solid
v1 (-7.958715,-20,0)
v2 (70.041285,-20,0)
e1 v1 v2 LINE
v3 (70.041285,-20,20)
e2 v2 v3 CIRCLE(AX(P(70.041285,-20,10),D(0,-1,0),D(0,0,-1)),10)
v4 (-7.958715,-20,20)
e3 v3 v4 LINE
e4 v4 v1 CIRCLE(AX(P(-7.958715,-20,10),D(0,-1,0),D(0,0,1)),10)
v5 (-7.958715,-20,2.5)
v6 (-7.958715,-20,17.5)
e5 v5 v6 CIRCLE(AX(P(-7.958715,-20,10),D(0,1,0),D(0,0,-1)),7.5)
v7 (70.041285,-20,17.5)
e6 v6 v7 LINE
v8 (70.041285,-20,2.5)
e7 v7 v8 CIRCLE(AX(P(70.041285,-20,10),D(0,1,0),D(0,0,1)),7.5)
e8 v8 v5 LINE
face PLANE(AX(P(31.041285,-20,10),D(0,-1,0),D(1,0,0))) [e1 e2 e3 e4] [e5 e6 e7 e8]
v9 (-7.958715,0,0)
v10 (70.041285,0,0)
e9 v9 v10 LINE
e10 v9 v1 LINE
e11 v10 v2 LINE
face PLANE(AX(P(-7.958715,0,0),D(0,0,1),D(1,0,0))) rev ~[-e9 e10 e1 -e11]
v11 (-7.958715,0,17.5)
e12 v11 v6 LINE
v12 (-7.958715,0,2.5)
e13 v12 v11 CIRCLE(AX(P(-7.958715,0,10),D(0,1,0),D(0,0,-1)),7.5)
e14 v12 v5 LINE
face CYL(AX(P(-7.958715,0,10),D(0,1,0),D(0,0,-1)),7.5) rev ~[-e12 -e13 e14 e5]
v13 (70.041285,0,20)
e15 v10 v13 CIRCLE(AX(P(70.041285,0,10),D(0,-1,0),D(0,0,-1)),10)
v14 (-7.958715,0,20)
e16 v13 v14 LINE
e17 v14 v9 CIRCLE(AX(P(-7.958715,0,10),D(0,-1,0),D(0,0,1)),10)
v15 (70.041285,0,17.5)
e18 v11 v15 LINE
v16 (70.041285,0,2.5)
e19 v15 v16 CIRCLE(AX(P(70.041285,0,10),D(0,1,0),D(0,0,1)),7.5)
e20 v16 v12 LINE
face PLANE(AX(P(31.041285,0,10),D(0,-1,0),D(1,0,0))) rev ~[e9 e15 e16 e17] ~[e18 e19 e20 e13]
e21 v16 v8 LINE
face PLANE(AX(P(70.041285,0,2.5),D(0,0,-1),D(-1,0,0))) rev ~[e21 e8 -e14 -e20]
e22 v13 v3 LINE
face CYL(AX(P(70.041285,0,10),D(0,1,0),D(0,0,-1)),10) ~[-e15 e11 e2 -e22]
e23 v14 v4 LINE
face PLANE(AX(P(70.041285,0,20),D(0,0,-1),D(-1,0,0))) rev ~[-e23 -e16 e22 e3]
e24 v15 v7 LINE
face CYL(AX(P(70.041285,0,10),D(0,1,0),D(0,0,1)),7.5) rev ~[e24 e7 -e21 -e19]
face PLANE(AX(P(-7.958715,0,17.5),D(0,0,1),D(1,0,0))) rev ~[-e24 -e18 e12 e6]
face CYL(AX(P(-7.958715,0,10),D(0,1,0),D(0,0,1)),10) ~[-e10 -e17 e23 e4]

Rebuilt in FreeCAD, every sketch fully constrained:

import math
import FreeCAD as App
import Part
import Sketcher
from FreeCAD import Vector

doc = App.newDocument("Part")
params = doc.addObject("Spreadsheet::Sheet", "Params")
for row, (alias, value) in enumerate([
    ("sketch1_radius", "10 mm"),
    ("sketch1_radius2", "7.5 mm"),
    ("sketch1_width", "78 mm"),
    ("pad1_length", "20 mm"),
], start=1):
    params.set(f"A{row}", alias)
    params.set(f"B{row}", "=" + value)
    params.setAlias(f"B{row}", alias)

body = doc.addObject("PartDesign::Body", "Body")

sketch1 = body.newObject("Sketcher::SketchObject", "Sketch")
sketch1.AttachmentSupport = (doc.getObject("XZ_Plane"), [""])
sketch1.MapMode = "FlatFace"
sketch1.addGeometry(Part.ArcOfCircle(Part.Circle(Vector(-7.958715, 10, 0), Vector(0, 0, 1), 10), math.radians(90), math.radians(270)), False)
sketch1.addGeometry(Part.LineSegment(Vector(-7.958715, 0, 0), Vector(70.041285, 0, 0)), False)
sketch1.addGeometry(Part.ArcOfCircle(Part.Circle(Vector(70.041285, 10, 0), Vector(0, 0, 1), 10), math.radians(-90), math.radians(90)), False)
sketch1.addGeometry(Part.LineSegment(Vector(70.041285, 20, 0), Vector(-7.958715, 20, 0)), False)
sketch1.addGeometry(Part.LineSegment(Vector(-7.958715, 17.5, 0), Vector(70.041285, 17.5, 0)), False)
sketch1.addGeometry(Part.ArcOfCircle(Part.Circle(Vector(70.041285, 10, 0), Vector(0, 0, 1), 7.5), math.radians(-90), math.radians(90)), False)
sketch1.addGeometry(Part.LineSegment(Vector(70.041285, 2.5, 0), Vector(-7.958715, 2.5, 0)), False)
sketch1.addGeometry(Part.ArcOfCircle(Part.Circle(Vector(-7.958715, 10, 0), Vector(0, 0, 1), 7.5), math.radians(90), math.radians(270)), False)
sketch1.addConstraint(Sketcher.Constraint("Tangent", 0, 2, 1, 1))
sketch1.addConstraint(Sketcher.Constraint("Tangent", 1, 2, 2, 1))
sketch1.addConstraint(Sketcher.Constraint("Tangent", 2, 2, 3, 1))
sketch1.addConstraint(Sketcher.Constraint("Tangent", 3, 2, 0, 1))
sketch1.addConstraint(Sketcher.Constraint("Tangent", 4, 2, 5, 2))
sketch1.addConstraint(Sketcher.Constraint("Tangent", 5, 1, 6, 1))
sketch1.addConstraint(Sketcher.Constraint("Tangent", 6, 2, 7, 2))
sketch1.addConstraint(Sketcher.Constraint("Tangent", 7, 1, 4, 1))
sketch1.addConstraint(Sketcher.Constraint("Horizontal", 1))
sketch1.addConstraint(Sketcher.Constraint("Horizontal", 3))
sketch1.addConstraint(Sketcher.Constraint("Horizontal", 4))
sketch1.addConstraint(Sketcher.Constraint("Horizontal", 6))
sketch1.addConstraint(Sketcher.Constraint("Coincident", 5, 3, 2, 3))
sketch1.addConstraint(Sketcher.Constraint("PointOnObject", 0, 2, -1))
sketch1.addConstraint(Sketcher.Constraint("Vertical", 7, 3, 0, 2))
sketch1.addConstraint(Sketcher.Constraint("Radius", 0, 10.0))
sketch1.addConstraint(Sketcher.Constraint("Radius", 5, 7.5))
sketch1.addConstraint(Sketcher.Constraint("DistanceX", 1, 1, 1, 2, 78.0))
sketch1.addConstraint(Sketcher.Constraint("DistanceX", 0, 3, -1, 1, 7.958715))
sketch1.setExpression("Constraints[15]", "Params.sketch1_radius")
sketch1.setExpression("Constraints[16]", "Params.sketch1_radius2")
sketch1.setExpression("Constraints[17]", "Params.sketch1_width")
pad1 = body.newObject("PartDesign::Pad", "Pad")
pad1.Profile = sketch1
pad1.setExpression("Length", "Params.pad1_length")

doc.recompute()
